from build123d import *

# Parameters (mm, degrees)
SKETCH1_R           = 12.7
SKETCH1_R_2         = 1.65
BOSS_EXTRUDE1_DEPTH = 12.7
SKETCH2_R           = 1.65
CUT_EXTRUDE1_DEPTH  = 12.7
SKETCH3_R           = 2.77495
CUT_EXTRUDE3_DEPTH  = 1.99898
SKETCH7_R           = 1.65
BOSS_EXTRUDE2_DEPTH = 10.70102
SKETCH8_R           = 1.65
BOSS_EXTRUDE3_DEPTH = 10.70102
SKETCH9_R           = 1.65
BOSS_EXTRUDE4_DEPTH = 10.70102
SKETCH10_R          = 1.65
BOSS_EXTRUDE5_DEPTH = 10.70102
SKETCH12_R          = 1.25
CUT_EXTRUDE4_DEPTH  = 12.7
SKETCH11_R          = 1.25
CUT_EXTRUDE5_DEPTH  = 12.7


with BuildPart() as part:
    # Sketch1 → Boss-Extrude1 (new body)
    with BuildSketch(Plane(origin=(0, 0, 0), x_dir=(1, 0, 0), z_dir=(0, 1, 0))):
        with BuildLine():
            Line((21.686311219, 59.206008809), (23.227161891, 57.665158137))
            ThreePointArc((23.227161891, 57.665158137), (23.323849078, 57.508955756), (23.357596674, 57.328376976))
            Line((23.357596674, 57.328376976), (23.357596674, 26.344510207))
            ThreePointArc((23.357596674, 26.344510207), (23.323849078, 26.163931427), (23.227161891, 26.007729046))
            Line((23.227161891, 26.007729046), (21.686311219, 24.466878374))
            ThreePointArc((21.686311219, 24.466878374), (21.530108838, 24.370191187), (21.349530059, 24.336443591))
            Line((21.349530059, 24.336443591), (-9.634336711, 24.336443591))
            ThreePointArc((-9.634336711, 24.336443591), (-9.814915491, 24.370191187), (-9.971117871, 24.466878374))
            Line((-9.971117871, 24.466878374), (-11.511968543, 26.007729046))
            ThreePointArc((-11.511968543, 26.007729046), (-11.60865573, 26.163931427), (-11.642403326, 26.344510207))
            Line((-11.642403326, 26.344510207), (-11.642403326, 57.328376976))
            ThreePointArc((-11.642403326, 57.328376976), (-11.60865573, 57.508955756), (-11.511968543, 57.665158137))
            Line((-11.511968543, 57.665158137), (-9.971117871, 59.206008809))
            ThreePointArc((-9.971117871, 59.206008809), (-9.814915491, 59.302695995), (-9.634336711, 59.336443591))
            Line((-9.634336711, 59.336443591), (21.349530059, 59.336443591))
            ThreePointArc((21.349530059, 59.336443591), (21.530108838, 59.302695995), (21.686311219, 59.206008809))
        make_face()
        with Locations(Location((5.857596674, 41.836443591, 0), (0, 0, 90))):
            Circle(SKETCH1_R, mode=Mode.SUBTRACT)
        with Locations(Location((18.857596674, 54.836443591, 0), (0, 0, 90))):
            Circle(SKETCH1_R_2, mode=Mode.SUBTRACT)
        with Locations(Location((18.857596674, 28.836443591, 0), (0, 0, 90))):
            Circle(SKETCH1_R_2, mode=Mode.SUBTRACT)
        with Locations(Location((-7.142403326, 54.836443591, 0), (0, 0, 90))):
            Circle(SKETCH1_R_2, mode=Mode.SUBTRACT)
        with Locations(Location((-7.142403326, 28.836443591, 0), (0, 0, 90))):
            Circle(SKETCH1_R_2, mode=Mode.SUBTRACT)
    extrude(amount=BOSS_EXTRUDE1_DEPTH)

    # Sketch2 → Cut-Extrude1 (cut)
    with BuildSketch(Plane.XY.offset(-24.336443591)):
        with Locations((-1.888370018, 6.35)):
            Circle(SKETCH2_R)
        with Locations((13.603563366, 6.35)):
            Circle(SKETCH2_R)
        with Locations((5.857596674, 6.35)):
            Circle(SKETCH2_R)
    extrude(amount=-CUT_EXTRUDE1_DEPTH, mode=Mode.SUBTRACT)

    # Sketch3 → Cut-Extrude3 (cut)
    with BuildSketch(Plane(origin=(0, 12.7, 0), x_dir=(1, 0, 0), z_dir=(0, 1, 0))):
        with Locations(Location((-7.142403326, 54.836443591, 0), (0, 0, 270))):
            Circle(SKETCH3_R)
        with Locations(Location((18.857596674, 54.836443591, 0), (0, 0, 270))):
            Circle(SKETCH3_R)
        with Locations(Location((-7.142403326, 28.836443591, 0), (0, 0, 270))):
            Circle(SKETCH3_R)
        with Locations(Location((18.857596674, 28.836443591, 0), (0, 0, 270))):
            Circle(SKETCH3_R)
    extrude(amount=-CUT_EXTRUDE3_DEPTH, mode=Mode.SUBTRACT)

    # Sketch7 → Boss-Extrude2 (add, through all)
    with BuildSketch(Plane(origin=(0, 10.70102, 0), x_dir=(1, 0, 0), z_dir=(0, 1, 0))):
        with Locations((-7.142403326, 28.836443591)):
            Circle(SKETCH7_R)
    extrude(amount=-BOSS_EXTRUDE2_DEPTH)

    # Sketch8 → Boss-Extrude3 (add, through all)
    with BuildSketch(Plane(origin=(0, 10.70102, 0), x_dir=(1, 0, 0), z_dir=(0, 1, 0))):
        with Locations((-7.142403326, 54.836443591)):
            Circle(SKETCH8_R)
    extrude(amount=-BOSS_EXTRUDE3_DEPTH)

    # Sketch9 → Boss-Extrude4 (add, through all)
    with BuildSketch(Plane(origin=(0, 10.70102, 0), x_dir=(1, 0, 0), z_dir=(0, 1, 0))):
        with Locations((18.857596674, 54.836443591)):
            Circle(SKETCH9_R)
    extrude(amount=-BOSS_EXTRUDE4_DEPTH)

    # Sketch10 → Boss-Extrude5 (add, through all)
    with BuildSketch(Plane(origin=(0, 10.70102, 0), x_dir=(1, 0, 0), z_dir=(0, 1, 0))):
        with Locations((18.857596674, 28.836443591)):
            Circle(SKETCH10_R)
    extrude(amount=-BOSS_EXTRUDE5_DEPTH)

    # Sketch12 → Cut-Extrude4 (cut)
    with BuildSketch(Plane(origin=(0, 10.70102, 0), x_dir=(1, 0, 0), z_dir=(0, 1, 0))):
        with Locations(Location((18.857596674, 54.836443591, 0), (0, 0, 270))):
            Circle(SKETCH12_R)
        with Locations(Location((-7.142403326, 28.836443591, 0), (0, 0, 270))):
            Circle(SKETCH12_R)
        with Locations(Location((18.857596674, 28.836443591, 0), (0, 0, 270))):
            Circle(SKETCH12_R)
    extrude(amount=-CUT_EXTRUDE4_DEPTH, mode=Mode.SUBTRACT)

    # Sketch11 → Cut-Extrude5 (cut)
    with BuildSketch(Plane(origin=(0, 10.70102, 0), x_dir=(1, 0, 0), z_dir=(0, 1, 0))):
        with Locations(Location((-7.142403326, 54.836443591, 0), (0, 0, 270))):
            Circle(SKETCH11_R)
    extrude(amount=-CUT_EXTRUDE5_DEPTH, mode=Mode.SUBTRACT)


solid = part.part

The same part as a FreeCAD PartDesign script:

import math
import FreeCAD as App
import Part
import Sketcher

V = App.Vector

doc = App.newDocument("Part")
body = doc.addObject("PartDesign::Body", "Body")

sketch1 = body.newObject("Sketcher::SketchObject", "Sketch")
sketch1.AttachmentSupport = (doc.getObject("XZ_Plane"), [""])
sketch1.MapMode = "FlatFace"
sketch1.addGeometry(Part.LineSegment(V(23.23, -57.67, 0), V(21.69, -59.21, 0)), False)
sketch1.addGeometry(Part.ArcOfCircle(Part.Circle(V(21.35, -58.84, 0), V(0, 0, 1), 0.5), math.radians(-90), math.radians(-48)), False)
sketch1.addGeometry(Part.LineSegment(V(21.35, -59.34, 0), V(-9.63, -59.34, 0)), False)
sketch1.addGeometry(Part.ArcOfCircle(Part.Circle(V(-9.63, -58.84, 0), V(0, 0, 1), 0.5), math.radians(-132), math.radians(-90)), False)
sketch1.addGeometry(Part.LineSegment(V(-9.97, -59.21, 0), V(-11.51, -57.67, 0)), False)
sketch1.addGeometry(Part.ArcOfCircle(Part.Circle(V(-11.14, -57.33, 0), V(0, 0, 1), 0.5), math.radians(180), math.radians(222)), False)
sketch1.addGeometry(Part.LineSegment(V(-11.64, -57.33, 0), V(-11.64, -26.34, 0)), False)
sketch1.addGeometry(Part.ArcOfCircle(Part.Circle(V(-11.14, -26.34, 0), V(0, 0, 1), 0.5), math.radians(138), math.radians(180)), False)
sketch1.addGeometry(Part.LineSegment(V(-11.51, -26.01, 0), V(-9.97, -24.47, 0)), False)
sketch1.addGeometry(Part.ArcOfCircle(Part.Circle(V(-9.63, -24.84, 0), V(0, 0, 1), 0.5), math.radians(90), math.radians(132)), False)
sketch1.addGeometry(Part.LineSegment(V(-9.63, -24.34, 0), V(21.35, -24.34, 0)), False)
sketch1.addGeometry(Part.ArcOfCircle(Part.Circle(V(21.35, -24.84, 0), V(0, 0, 1), 0.5), math.radians(48), math.radians(90)), False)
sketch1.addGeometry(Part.LineSegment(V(21.69, -24.47, 0), V(23.23, -26.01, 0)), False)
sketch1.addGeometry(Part.ArcOfCircle(Part.Circle(V(22.86, -26.34, 0), V(0, 0, 1), 0.5), math.radians(0), math.radians(42)), False)
sketch1.addGeometry(Part.LineSegment(V(23.36, -26.34, 0), V(23.36, -57.33, 0)), False)
sketch1.addGeometry(Part.ArcOfCircle(Part.Circle(V(22.86, -57.33, 0), V(0, 0, 1), 0.5), math.radians(-42), math.radians(0)), False)
sketch1.addGeometry(Part.Circle(V(18.86, -28.84, 0), V(0, 0, 1), 1.65), False)
sketch1.addGeometry(Part.Circle(V(5.86, -41.84, 0), V(0, 0, 1), 12.7), False)
sketch1.addGeometry(Part.Circle(V(-7.14, -28.84, 0), V(0, 0, 1), 1.65), False)
sketch1.addGeometry(Part.Circle(V(18.86, -54.84, 0), V(0, 0, 1), 1.65), False)
sketch1.addGeometry(Part.Circle(V(-7.14, -54.84, 0), V(0, 0, 1), 1.65), False)
sketch1.addConstraint(Sketcher.Constraint("Coincident", 0, 2, 1, 2))
sketch1.addConstraint(Sketcher.Constraint("Tangent", 1, 1, 2, 1))
sketch1.addConstraint(Sketcher.Constraint("Tangent", 2, 2, 3, 2))
sketch1.addConstraint(Sketcher.Constraint("Coincident", 3, 1, 4, 1))
sketch1.addConstraint(Sketcher.Constraint("Coincident", 4, 2, 5, 2))
sketch1.addConstraint(Sketcher.Constraint("Tangent", 5, 1, 6, 1))
sketch1.addConstraint(Sketcher.Constraint("Tangent", 6, 2, 7, 2))
sketch1.addConstraint(Sketcher.Constraint("Coincident", 7, 1, 8, 1))
sketch1.addConstraint(Sketcher.Constraint("Coincident", 8, 2, 9, 2))
sketch1.addConstraint(Sketcher.Constraint("Tangent", 9, 1, 10, 1))
sketch1.addConstraint(Sketcher.Constraint("Tangent", 10, 2, 11, 2))
sketch1.addConstraint(Sketcher.Constraint("Coincident", 11, 1, 12, 1))
sketch1.addConstraint(Sketcher.Constraint("Coincident", 12, 2, 13, 2))
sketch1.addConstraint(Sketcher.Constraint("Tangent", 13, 1, 14, 1))
sketch1.addConstraint(Sketcher.Constraint("Tangent", 14, 2, 15, 2))
sketch1.addConstraint(Sketcher.Constraint("Coincident", 15, 1, 0, 1))
sketch1.addConstraint(Sketcher.Constraint("Horizontal", 2))
sketch1.addConstraint(Sketcher.Constraint("Vertical", 6))
sketch1.addConstraint(Sketcher.Constraint("Horizontal", 10))
sketch1.addConstraint(Sketcher.Constraint("Vertical", 14))
sketch1.addConstraint(Sketcher.Constraint("Equal", 1, 3))
sketch1.addConstraint(Sketcher.Constraint("Equal", 3, 5))
sketch1.addConstraint(Sketcher.Constraint("Equal", 5, 7))
sketch1.addConstraint(Sketcher.Constraint("Equal", 7, 9))
sketch1.addConstraint(Sketcher.Constraint("Equal", 9, 11))
sketch1.addConstraint(Sketcher.Constraint("Equal", 11, 13))
sketch1.addConstraint(Sketcher.Constraint("Equal", 13, 15))
sketch1.addConstraint(Sketcher.Constraint("Equal", 16, 18))
sketch1.addConstraint(Sketcher.Constraint("Equal", 18, 19))
sketch1.addConstraint(Sketcher.Constraint("Equal", 19, 20))
sketch1.addConstraint(Sketcher.Constraint("Perpendicular", 0, 4))
sketch1.addConstraint(Sketcher.Constraint("Perpendicular", 4, 8))
sketch1.addConstraint(Sketcher.Constraint("Perpendicular", 8, 12))
sketch1.addConstraint(Sketcher.Constraint("Horizontal", 7, 3, 13, 3))
sketch1.addConstraint(Sketcher.Constraint("Horizontal", 5, 3, 15, 3))
sketch1.addConstraint(Sketcher.Constraint("Horizontal", 16, 3, 18, 3))
sketch1.addConstraint(Sketcher.Constraint("Horizontal", 19, 3, 20, 3))
sketch1.addConstraint(Sketcher.Constraint("Horizontal", 0, 2, 3, 1))
sketch1.addConstraint(Sketcher.Constraint("Horizontal", 8, 2, 11, 1))
sketch1.addConstraint(Sketcher.Constraint("Horizontal", 7, 1, 12, 2))
sketch1.addConstraint(Sketcher.Constraint("Horizontal", 4, 2, 15, 1))
sketch1.addConstraint(Sketcher.Constraint("Vertical", 3, 3, 9, 3))
sketch1.addConstraint(Sketcher.Constraint("Vertical", 1, 3, 11, 3))
sketch1.addConstraint(Sketcher.Constraint("Vertical", 16, 3, 19, 3))
sketch1.addConstraint(Sketcher.Constraint("Vertical", 18, 3, 20, 3))
sketch1.addConstraint(Sketcher.Constraint("Vertical", 4, 2, 7, 1))
sketch1.addConstraint(Sketcher.Constraint("Vertical", 3, 1, 8, 2))
sketch1.addConstraint(Sketcher.Constraint("Equal", 10, 6))
sketch1.addConstraint(Sketcher.Constraint("Diameter", 16, 3.3))
sketch1.addConstraint(Sketcher.Constraint("Diameter", 17, 25.4))
sketch1.addConstraint(Sketcher.Constraint("Radius", 1, 0.5))
sketch1.addConstraint(Sketcher.Constraint("DistanceY", 3, 3, 9, 3, 34.0))
sketch1.addConstraint(Sketcher.Constraint("DistanceX", 7, 3, 13, 3, 34.0))
sketch1.addConstraint(Sketcher.Constraint("DistanceY", 16, 3, 11, 3, 4.0))
sketch1.addConstraint(Sketcher.Constraint("DistanceX", 16, 3, 13, 3, 4.0))
sketch1.addConstraint(Sketcher.Constraint("DistanceX", 17, 3, 16, 3, 13.0))
sketch1.addConstraint(Sketcher.Constraint("DistanceY", 17, 3, 16, 3, 13.0))
sketch1.addConstraint(Sketcher.Constraint("DistanceX", 7, 3, 18, 3, 4.0))
sketch1.addConstraint(Sketcher.Constraint("DistanceY", 1, 3, 19, 3, 4.0))
sketch1.addConstraint(Sketcher.Constraint("Distance", 0, 2.179092))
sketch1.addConstraint(Sketcher.Constraint("DistanceX", 2, 2, 2, 1, 30.983867))
sketch1.addConstraint(Sketcher.Constraint("DistanceX", -1, 1, 1, 3, 21.34953))
sketch1.addConstraint(Sketcher.Constraint("DistanceY", 7, 3, -1, 1, 26.34451))
pad1 = body.newObject("PartDesign::Pad", "Pad")
pad1.Profile = sketch1
pad1.Length = 12.7
pad1.Reversed = True

sketch2 = body.newObject("Sketcher::SketchObject", "Sketch001")
sketch2.AttachmentSupport = (doc.getObject("XY_Plane"), [""])
sketch2.MapMode = "FlatFace"
sketch2.AttachmentOffset = App.Placement(V(0, 0, -24.336444), App.Rotation())
sketch2.addGeometry(Part.Circle(V(-1.9, 6.3, 0), V(0, 0, 1), 1.6), False)
sketch2.addGeometry(Part.Circle(V(13.6, 6.3, 0), V(0, 0, 1), 1.6), False)
sketch2.addGeometry(Part.Circle(V(5.9, 6.3, 0), V(0, 0, 1), 1.6), False)
sketch2.addConstraint(Sketcher.Constraint("Equal", 0, 1))
sketch2.addConstraint(Sketcher.Constraint("Equal", 1, 2))
sketch2.addConstraint(Sketcher.Constraint("Horizontal", 0, 3, 1, 3))
sketch2.addConstraint(Sketcher.Constraint("Horizontal", 1, 3, 2, 3))
sketch2.addConstraint(Sketcher.Constraint("Diameter", 0, 3.3))
sketch2.addConstraint(Sketcher.Constraint("DistanceY", -1, 1, 0, 3, 6.35))
sketch2.addConstraint(Sketcher.Constraint("DistanceX", 0, 3, -1, 1, 1.88837))
sketch2.addConstraint(Sketcher.Constraint("DistanceX", -1, 1, 1, 3, 13.603563))
sketch2.addConstraint(Sketcher.Constraint("DistanceX", -1, 1, 2, 3, 5.857597))
pocket1 = body.newObject("PartDesign::Pocket", "Pocket")
pocket1.Profile = sketch2
pocket1.Length = 12.7

sketch3 = body.newObject("Sketcher::SketchObject", "Sketch002")
sketch3.AttachmentSupport = (doc.getObject("XZ_Plane"), [""])
sketch3.MapMode = "FlatFace"
sketch3.AttachmentOffset = App.Placement(V(0, 0, -12.7), App.Rotation())
sketch3.addGeometry(Part.Circle(V(-7.1, -54.8, 0), V(0, 0, 1), 2.8), False)
sketch3.addGeometry(Part.Circle(V(18.9, -54.8, 0), V(0, 0, 1), 2.8), False)
sketch3.addGeometry(Part.Circle(V(-7.1, -28.8, 0), V(0, 0, 1), 2.8), False)
sketch3.addGeometry(Part.Circle(V(18.9, -28.8, 0), V(0, 0, 1), 2.8), False)
sketch3.addConstraint(Sketcher.Constraint("Equal", 0, 1))
sketch3.addConstraint(Sketcher.Constraint("Equal", 1, 2))
sketch3.addConstraint(Sketcher.Constraint("Equal", 2, 3))
sketch3.addConstraint(Sketcher.Constraint("Horizontal", 0, 3, 1, 3))
sketch3.addConstraint(Sketcher.Constraint("Horizontal", 2, 3, 3, 3))
sketch3.addConstraint(Sketcher.Constraint("Vertical", 0, 3, 2, 3))
sketch3.addConstraint(Sketcher.Constraint("Vertical", 1, 3, 3, 3))
sketch3.addConstraint(Sketcher.Constraint("DistanceX", 0, 3, 1, 3, 26.0))
sketch3.addConstraint(Sketcher.Constraint("DistanceY", 0, 3, 2, 3, 26.0))
sketch3.addConstraint(Sketcher.Constraint("Diameter", 0, 5.5499))
sketch3.addConstraint(Sketcher.Constraint("DistanceX", 0, 3, -1, 1, 7.142403))
sketch3.addConstraint(Sketcher.Constraint("DistanceY", 0, 3, -1, 1, 54.836444))
pocket2 = body.newObject("PartDesign::Pocket", "Pocket001")
pocket2.Profile = sketch3
pocket2.Length = 1.99898
pocket2.Reversed = True

sketch4 = body.newObject("Sketcher::SketchObject", "Sketch003")
sketch4.AttachmentSupport = (doc.getObject("XZ_Plane"), [""])
sketch4.MapMode = "FlatFace"
sketch4.AttachmentOffset = App.Placement(V(0, 0, -10.70102), App.Rotation())
sketch4.addGeometry(Part.Circle(V(-7.1, -28.8, 0), V(0, 0, 1), 1.6), False)
sketch4.addConstraint(Sketcher.Constraint("Diameter", 0, 3.3))
sketch4.addConstraint(Sketcher.Constraint("DistanceX", 0, 3, -1, 1, 7.142403))
sketch4.addConstraint(Sketcher.Constraint("DistanceY", 0, 3, -1, 1, 28.836444))
pad2 = body.newObject("PartDesign::Pad", "Pad001")
pad2.Profile = sketch4
pad2.Length = 10.70102

sketch5 = body.newObject("Sketcher::SketchObject", "Sketch004")
sketch5.AttachmentSupport = (doc.getObject("XZ_Plane"), [""])
sketch5.MapMode = "FlatFace"
sketch5.AttachmentOffset = App.Placement(V(0, 0, -10.70102), App.Rotation())
sketch5.addGeometry(Part.Circle(V(-7.1, -54.8, 0), V(0, 0, 1), 1.6), False)
sketch5.addConstraint(Sketcher.Constraint("Diameter", 0, 3.3))
sketch5.addConstraint(Sketcher.Constraint("DistanceX", 0, 3, -1, 1, 7.142403))
sketch5.addConstraint(Sketcher.Constraint("DistanceY", 0, 3, -1, 1, 54.836444))
pad3 = body.newObject("PartDesign::Pad", "Pad002")
pad3.Profile = sketch5
pad3.Length = 10.70102

sketch6 = body.newObject("Sketcher::SketchObject", "Sketch005")
sketch6.AttachmentSupport = (doc.getObject("XZ_Plane"), [""])
sketch6.MapMode = "FlatFace"
sketch6.AttachmentOffset = App.Placement(V(0, 0, -10.70102), App.Rotation())
sketch6.addGeometry(Part.Circle(V(18.9, -54.8, 0), V(0, 0, 1), 1.6), False)
sketch6.addConstraint(Sketcher.Constraint("Diameter", 0, 3.3))
sketch6.addConstraint(Sketcher.Constraint("DistanceX", -1, 1, 0, 3, 18.857597))
sketch6.addConstraint(Sketcher.Constraint("DistanceY", 0, 3, -1, 1, 54.836444))
pad4 = body.newObject("PartDesign::Pad", "Pad003")
pad4.Profile = sketch6
pad4.Length = 10.70102

sketch7 = body.newObject("Sketcher::SketchObject", "Sketch006")
sketch7.AttachmentSupport = (doc.getObject("XZ_Plane"), [""])
sketch7.MapMode = "FlatFace"
sketch7.AttachmentOffset = App.Placement(V(0, 0, -10.70102), App.Rotation())
sketch7.addGeometry(Part.Circle(V(18.9, -28.8, 0), V(0, 0, 1), 1.6), False)
sketch7.addConstraint(Sketcher.Constraint("Diameter", 0, 3.3))
sketch7.addConstraint(Sketcher.Constraint("DistanceX", -1, 1, 0, 3, 18.857597))
sketch7.addConstraint(Sketcher.Constraint("DistanceY", 0, 3, -1, 1, 28.836444))
pad5 = body.newObject("PartDesign::Pad", "Pad004")
pad5.Profile = sketch7
pad5.Length = 10.70102

sketch8 = body.newObject("Sketcher::SketchObject", "Sketch007")
sketch8.AttachmentSupport = (doc.getObject("XZ_Plane"), [""])
sketch8.MapMode = "FlatFace"
sketch8.AttachmentOffset = App.Placement(V(0, 0, -10.70102), App.Rotation())
sketch8.addGeometry(Part.Circle(V(18.9, -54.8, 0), V(0, 0, 1), 1.2), False)
sketch8.addGeometry(Part.Circle(V(-7.1, -28.8, 0), V(0, 0, 1), 1.2), False)
sketch8.addGeometry(Part.Circle(V(18.9, -28.8, 0), V(0, 0, 1), 1.2), False)
sketch8.addConstraint(Sketcher.Constraint("Equal", 0, 1))
sketch8.addConstraint(Sketcher.Constraint("Equal", 1, 2))
sketch8.addConstraint(Sketcher.Constraint("Horizontal", 1, 3, 2, 3))
sketch8.addConstraint(Sketcher.Constraint("Vertical", 0, 3, 2, 3))
sketch8.addConstraint(Sketcher.Constraint("Diameter", 0, 2.5))
sketch8.addConstraint(Sketcher.Constraint("DistanceX", 1, 3, 0, 3, 26.0))
sketch8.addConstraint(Sketcher.Constraint("DistanceY", 0, 3, 1, 3, 26.0))
sketch8.addConstraint(Sketcher.Constraint("DistanceX", -1, 1, 0, 3, 18.857597))
sketch8.addConstraint(Sketcher.Constraint("DistanceY", 0, 3, -1, 1, 54.836444))
pocket3 = body.newObject("PartDesign::Pocket", "Pocket002")
pocket3.Profile = sketch8
pocket3.Length = 12.7
pocket3.Reversed = True

sketch9 = body.newObject("Sketcher::SketchObject", "Sketch008")
sketch9.AttachmentSupport = (doc.getObject("XZ_Plane"), [""])
sketch9.MapMode = "FlatFace"
sketch9.AttachmentOffset = App.Placement(V(0, 0, -10.70102), App.Rotation())
sketch9.addGeometry(Part.Circle(V(-7.1, -54.8, 0), V(0, 0, 1), 1.2), False)
sketch9.addConstraint(Sketcher.Constraint("Diameter", 0, 2.5))
sketch9.addConstraint(Sketcher.Constraint("DistanceX", 0, 3, -1, 1, 7.142403))
sketch9.addConstraint(Sketcher.Constraint("DistanceY", 0, 3, -1, 1, 54.836444))
pocket4 = body.newObject("PartDesign::Pocket", "Pocket003")
pocket4.Profile = sketch9
pocket4.Length = 12.7
pocket4.Reversed = True

doc.recompute()
